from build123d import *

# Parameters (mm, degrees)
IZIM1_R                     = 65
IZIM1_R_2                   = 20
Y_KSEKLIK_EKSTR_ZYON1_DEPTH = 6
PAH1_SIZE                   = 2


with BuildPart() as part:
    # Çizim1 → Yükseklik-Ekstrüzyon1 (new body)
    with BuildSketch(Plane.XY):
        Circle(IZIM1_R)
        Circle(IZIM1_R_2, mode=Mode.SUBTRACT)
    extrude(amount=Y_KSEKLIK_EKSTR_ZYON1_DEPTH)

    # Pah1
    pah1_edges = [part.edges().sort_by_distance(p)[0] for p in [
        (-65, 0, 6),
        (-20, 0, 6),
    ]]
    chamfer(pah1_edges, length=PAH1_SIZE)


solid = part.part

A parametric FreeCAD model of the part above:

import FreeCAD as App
import Part
import Sketcher

V = App.Vector
Q = App.Units.Quantity


def edges_at(feature, points):
    """Names of the edges that pass closest to the given points."""
    edges = feature.Shape.Edges
    near = lambda p: min(range(len(edges)), key=lambda i: edges[i].distToShape(Part.Vertex(*p))[0])
    return sorted({f"Edge{near(p) + 1}" for p in points})

doc = App.newDocument("Part")
body = doc.addObject("PartDesign::Body", "Body")

# Sketch on XY plane
sketch1 = doc.addObject("Sketcher::SketchObject", "Sketch")
body.addObject(sketch1)
sketch1.AttachmentSupport = (doc.XY_Plane, [""])
sketch1.MapMode = "FlatFace"
sketch1.addGeometry([
    Part.Circle(V(0, 0, 0), V(0, 0, 1), 65),
    Part.Circle(V(0, 0, 0), V(0, 0, 1), 20),
], False)
sketch1.addConstraint([
    Sketcher.Constraint("Coincident", 0, 3, -1, 1),
    Sketcher.Constraint("Coincident", 1, 3, -1, 1),
    Sketcher.Constraint("Diameter", 0, Q("130 mm")),
    Sketcher.Constraint("Diameter", 1, Q("40 mm")),
])
pad1 = doc.addObject("PartDesign::Pad", "Pad")
body.addObject(pad1)
pad1.Profile = sketch1
pad1.Length = 6
doc.recompute()

chamfer = doc.addObject("PartDesign::Chamfer", "Chamfer")
body.addObject(chamfer)
chamfer.Base = (pad1, edges_at(pad1, [(-65, 0, 6), (-20, 0, 6)]))
chamfer.Size = 2

doc.recompute()
